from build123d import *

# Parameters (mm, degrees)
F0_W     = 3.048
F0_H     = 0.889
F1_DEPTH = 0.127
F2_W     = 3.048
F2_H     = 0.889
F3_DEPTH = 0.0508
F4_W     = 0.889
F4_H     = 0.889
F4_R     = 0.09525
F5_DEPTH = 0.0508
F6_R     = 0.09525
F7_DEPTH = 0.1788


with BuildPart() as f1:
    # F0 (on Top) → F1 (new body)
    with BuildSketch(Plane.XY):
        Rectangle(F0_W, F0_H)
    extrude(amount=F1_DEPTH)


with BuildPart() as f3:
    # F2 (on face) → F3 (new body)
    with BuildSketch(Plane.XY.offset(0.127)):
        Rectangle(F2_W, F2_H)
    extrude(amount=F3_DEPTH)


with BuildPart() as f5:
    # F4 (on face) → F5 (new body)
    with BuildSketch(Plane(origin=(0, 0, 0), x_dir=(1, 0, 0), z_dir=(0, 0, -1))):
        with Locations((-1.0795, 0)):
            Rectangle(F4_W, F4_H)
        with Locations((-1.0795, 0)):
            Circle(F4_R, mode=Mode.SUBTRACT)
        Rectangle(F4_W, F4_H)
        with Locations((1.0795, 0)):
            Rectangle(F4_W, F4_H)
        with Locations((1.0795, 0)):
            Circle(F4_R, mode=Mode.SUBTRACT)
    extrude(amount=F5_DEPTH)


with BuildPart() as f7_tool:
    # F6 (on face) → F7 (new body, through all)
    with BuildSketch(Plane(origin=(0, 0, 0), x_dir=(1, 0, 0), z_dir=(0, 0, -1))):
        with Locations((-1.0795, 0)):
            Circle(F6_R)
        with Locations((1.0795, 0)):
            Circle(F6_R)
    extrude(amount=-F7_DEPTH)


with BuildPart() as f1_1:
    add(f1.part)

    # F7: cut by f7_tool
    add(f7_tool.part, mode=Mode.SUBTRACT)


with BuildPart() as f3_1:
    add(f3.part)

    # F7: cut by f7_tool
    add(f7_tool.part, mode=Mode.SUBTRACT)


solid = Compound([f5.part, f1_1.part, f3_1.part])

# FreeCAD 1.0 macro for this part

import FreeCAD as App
import Part
import Sketcher
Q = App.Units.Quantity


def add_polygon(sketch, points):
    """Adds a closed chain of lines whose ends are joined by coincident constraints."""
    first, n = sketch.GeometryCount, len(points)
    for a, b in zip(points, points[1:] + points[:1]):
        sketch.addGeometry(Part.LineSegment(App.Vector(*a, 0), App.Vector(*b, 0)), False)
    for i in range(n):
        sketch.addConstraint(Sketcher.Constraint("Coincident", first + i, 2, first + (i + 1) % n, 1))

doc = App.newDocument("Part")
body = doc.addObject("PartDesign::Body", "Body")

# Sketch on XY plane
sketch1 = body.newObject("Sketcher::SketchObject", "Sketch")
sketch1.AttachmentSupport = (doc.getObject("XY_Plane"), [""])
sketch1.MapMode = "FlatFace"
add_polygon(sketch1, [(-1.5, 0.4), (-1.5, -0.4), (1.5, -0.4), (1.5, 0.4)])  # lines 0-3
sketch1.addConstraint([
    Sketcher.Constraint("Vertical", 0),
    Sketcher.Constraint("Horizontal", 1),
    Sketcher.Constraint("Vertical", 2),
    Sketcher.Constraint("Horizontal", 3),
    Sketcher.Constraint("Symmetric", 0, 2, 2, 2, -1, 1),
    Sketcher.Constraint("DistanceX", 1, 1, 1, 2, Q("0.12 in")),
    Sketcher.Constraint("DistanceY", 0, 2, 0, 1, Q("0.035 in")),
])
pad1 = body.newObject("PartDesign::Pad", "Pad")
pad1.Profile = sketch1
pad1.Length = Q("0.005 in")
body2 = doc.addObject("PartDesign::Body", "Body001")

# Sketch on XY plane
sketch2 = body2.newObject("Sketcher::SketchObject", "Sketch001")
sketch2.AttachmentSupport = (doc.getObject("XY_Plane001"), [""])
sketch2.MapMode = "FlatFace"
sketch2.AttachmentOffset = App.Placement(App.Vector(0, 0, 0.005 * 25.4), App.Rotation())
add_polygon(sketch2, [(-1.5, 0.4), (-1.5, -0.4), (1.5, -0.4), (1.5, 0.4)])  # lines 0-3
sketch2.addConstraint([
    Sketcher.Constraint("Vertical", 0),
    Sketcher.Constraint("Horizontal", 1),
    Sketcher.Constraint("Vertical", 2),
    Sketcher.Constraint("Horizontal", 3),
    Sketcher.Constraint("Symmetric", 0, 2, 2, 2, -1, 1),
    Sketcher.Constraint("DistanceX", 1, 1, 1, 2, Q("0.12 in")),
    Sketcher.Constraint("DistanceY", 0, 2, 0, 1, Q("0.035 in")),
])
pad2 = body2.newObject("PartDesign::Pad", "Pad001")
pad2.Profile = sketch2
pad2.Length = Q("0.002 in")
body3 = doc.addObject("PartDesign::Body", "Body002")
body3.AllowCompound = True

# Sketch on XY plane
sketch3 = body3.newObject("Sketcher::SketchObject", "Sketch002")
sketch3.AttachmentSupport = (doc.getObject("XY_Plane002"), [""])
sketch3.MapMode = "FlatFace"
add_polygon(sketch3, [(-1.52, -0.44), (-1.52, 0.44), (-0.64, 0.44), (-0.64, -0.44)])  # lines 0-3
sketch3.addGeometry(Part.Circle(App.Vector(-1.08, 0, 0), App.Vector(0, 0, 1), 0.1), False)  # 4
add_polygon(sketch3, [(-0.44, -0.44), (-0.44, 0.44), (0.44, 0.44), (0.44, -0.44)])  # lines 5-8
add_polygon(sketch3, [(0.64, -0.44), (0.64, 0.44), (1.52, 0.44), (1.52, -0.44)])  # lines 9-12
sketch3.addGeometry(Part.Circle(App.Vector(1.08, 0, 0), App.Vector(0, 0, 1), 0.1), False)  # 13
sketch3.addConstraint([
    Sketcher.Constraint("Vertical", 0),
    Sketcher.Constraint("Horizontal", 1),
    Sketcher.Constraint("Vertical", 2),
    Sketcher.Constraint("Horizontal", 3),
    Sketcher.Constraint("Vertical", 5),
    Sketcher.Constraint("Horizontal", 6),
    Sketcher.Constraint("Vertical", 7),
    Sketcher.Constraint("Horizontal", 8),
    Sketcher.Constraint("Vertical", 9),
    Sketcher.Constraint("Horizontal", 10),
    Sketcher.Constraint("Vertical", 11),
    Sketcher.Constraint("Horizontal", 12),
    Sketcher.Constraint("Equal", 4, 13),
    Sketcher.Constraint("Symmetric", 4, 3, 13, 3, -1, 1),
    Sketcher.Constraint("Symmetric", 5, 2, 7, 2, -1, 1),
    Sketcher.Constraint("Symmetric", 2, 2, 9, 2, -1, 1),
    Sketcher.Constraint("Symmetric", 0, 2, 11, 2, -1, 1),
    Sketcher.Constraint("PointOnObject", 4, 3, -1),
    Sketcher.Constraint("Horizontal", 1, 2, 5, 2),
    Sketcher.Constraint("Horizontal", 3, 2, 7, 2),
    Sketcher.Constraint("Equal", 3, 6),
    Sketcher.Constraint("Equal", 12, 0),
    Sketcher.Constraint("Diameter", 4, Q("0.0075 in")),
    Sketcher.Constraint("DistanceX", 1, 1, 1, 2, Q("0.035 in")),
    Sketcher.Constraint("DistanceX", 0, 2, -1, 1, Q("0.06 in")),
    Sketcher.Constraint("DistanceX", 4, 3, 6, 2, Q("0.06 in")),
])
pad3 = body3.newObject("PartDesign::Pad", "Pad002")
pad3.Profile = sketch3
pad3.Length = Q("0.002 in")
pad3.Reversed = True
body4 = doc.addObject("PartDesign::Body", "Body003")
body4.AllowCompound = True

# Sketch on XY plane
sketch4 = body4.newObject("Sketcher::SketchObject", "Sketch003")
sketch4.AttachmentSupport = (doc.getObject("XY_Plane003"), [""])
sketch4.MapMode = "FlatFace"
sketch4.addGeometry([
    Part.Circle(App.Vector(-1.08, 0, 0), App.Vector(0, 0, 1), 0.1),
    Part.Circle(App.Vector(1.08, 0, 0), App.Vector(0, 0, 1), 0.1),
], False)
sketch4.addConstraint([
    Sketcher.Constraint("Equal", 0, 1),
    Sketcher.Constraint("Symmetric", 0, 3, 1, 3, -1, 1),
    Sketcher.Constraint("PointOnObject", 0, 3, -1),
    Sketcher.Constraint("Diameter", 0, Q("0.0075 in")),
    Sketcher.Constraint("DistanceX", 0, 3, 1, 3, Q("0.085 in")),
])
pad4 = body4.newObject("PartDesign::Pad", "Pad003")
pad4.Profile = sketch4
pad4.Length = 0.1788
doc.recompute()

body5 = doc.addObject("PartDesign::Body", "Body004")
body5.BaseFeature = body4
boolean = body.newObject("PartDesign::Boolean", "Boolean")
boolean.Type = "Cut"
boolean.addObjects([body5])
doc.recompute()

boolean2 = body2.newObject("PartDesign::Boolean", "Boolean001")
boolean2.Type = "Cut"
boolean2.addObjects([body4])

doc.recompute()
